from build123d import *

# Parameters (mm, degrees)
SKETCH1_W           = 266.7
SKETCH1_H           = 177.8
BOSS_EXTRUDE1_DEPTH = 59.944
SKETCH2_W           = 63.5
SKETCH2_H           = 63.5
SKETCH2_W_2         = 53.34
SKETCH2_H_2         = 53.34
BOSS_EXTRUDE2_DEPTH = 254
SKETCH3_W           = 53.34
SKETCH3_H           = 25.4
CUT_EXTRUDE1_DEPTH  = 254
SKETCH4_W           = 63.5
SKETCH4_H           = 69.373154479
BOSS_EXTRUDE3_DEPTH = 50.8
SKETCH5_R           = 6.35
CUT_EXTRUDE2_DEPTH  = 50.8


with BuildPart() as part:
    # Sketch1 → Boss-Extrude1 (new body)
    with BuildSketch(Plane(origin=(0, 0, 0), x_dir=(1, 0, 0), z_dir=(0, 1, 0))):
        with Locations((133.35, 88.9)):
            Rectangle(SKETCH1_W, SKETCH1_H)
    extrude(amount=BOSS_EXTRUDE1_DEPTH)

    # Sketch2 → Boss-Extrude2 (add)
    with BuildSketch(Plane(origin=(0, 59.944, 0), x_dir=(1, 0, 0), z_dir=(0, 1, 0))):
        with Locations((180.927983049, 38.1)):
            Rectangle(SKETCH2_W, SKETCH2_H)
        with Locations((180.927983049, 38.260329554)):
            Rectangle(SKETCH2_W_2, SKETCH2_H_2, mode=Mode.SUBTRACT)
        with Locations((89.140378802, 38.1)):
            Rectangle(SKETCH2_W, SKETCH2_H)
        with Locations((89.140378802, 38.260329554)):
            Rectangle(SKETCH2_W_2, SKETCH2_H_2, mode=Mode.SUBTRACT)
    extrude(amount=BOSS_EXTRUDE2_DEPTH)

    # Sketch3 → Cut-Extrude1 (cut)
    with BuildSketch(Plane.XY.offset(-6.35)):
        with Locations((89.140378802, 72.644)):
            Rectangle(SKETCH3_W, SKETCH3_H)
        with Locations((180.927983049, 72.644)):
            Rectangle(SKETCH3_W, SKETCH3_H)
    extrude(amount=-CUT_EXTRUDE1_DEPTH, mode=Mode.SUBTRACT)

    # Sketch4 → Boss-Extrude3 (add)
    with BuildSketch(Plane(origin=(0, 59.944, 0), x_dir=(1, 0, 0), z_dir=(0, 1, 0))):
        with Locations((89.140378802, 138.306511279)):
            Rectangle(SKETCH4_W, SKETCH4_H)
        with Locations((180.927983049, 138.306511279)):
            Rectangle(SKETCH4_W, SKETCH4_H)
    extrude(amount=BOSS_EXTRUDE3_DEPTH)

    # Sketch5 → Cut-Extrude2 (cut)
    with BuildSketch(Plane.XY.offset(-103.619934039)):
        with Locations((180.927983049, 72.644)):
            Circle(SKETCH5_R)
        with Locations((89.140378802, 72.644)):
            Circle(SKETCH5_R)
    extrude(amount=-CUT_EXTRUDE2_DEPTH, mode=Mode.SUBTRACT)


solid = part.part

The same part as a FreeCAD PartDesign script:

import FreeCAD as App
import Part
import Sketcher
from FreeCAD import Vector
Q = App.Units.Quantity

doc = App.newDocument("Part")
body = doc.addObject("PartDesign::Body", "Body")

# Sketch on XZ plane
sketch1 = body.newObject("Sketcher::SketchObject", "Sketch")
sketch1.AttachmentSupport = (doc.getObject("XZ_Plane"), [""])
sketch1.MapMode = "FlatFace"
sketch1.addGeometry([
    Part.LineSegment(Vector(0, -178, 0), Vector(0, 0, 0)),
    Part.LineSegment(Vector(0, 0, 0), Vector(267, 0, 0)),
    Part.LineSegment(Vector(267, 0, 0), Vector(267, -178, 0)),
    Part.LineSegment(Vector(267, -178, 0), Vector(0, -178, 0)),
], False)
sketch1.addConstraint([
    Sketcher.Constraint("Coincident", 0, 2, 1, 1),
    Sketcher.Constraint("Coincident", 1, 2, 2, 1),
    Sketcher.Constraint("Coincident", 2, 2, 3, 1),
    Sketcher.Constraint("Coincident", 3, 2, 0, 1),
    Sketcher.Constraint("Vertical", 0),
    Sketcher.Constraint("Horizontal", 1),
    Sketcher.Constraint("Vertical", 2),
    Sketcher.Constraint("Horizontal", 3),
    Sketcher.Constraint("Coincident", 0, 2, -1, 1),
    Sketcher.Constraint("DistanceY", 0, 1, 0, 2, Q("7 in")),
    Sketcher.Constraint("DistanceX", 1, 1, 1, 2, Q("10.5 in")),
])
pad1 = body.newObject("PartDesign::Pad", "Pad")
pad1.Profile = sketch1
pad1.Length = Q("2.36 in")
pad1.Reversed = True

# Sketch on XZ plane
sketch2 = body.newObject("Sketcher::SketchObject", "Sketch001")
sketch2.AttachmentSupport = (doc.getObject("XZ_Plane"), [""])
sketch2.MapMode = "FlatFace"
sketch2.AttachmentOffset = App.Placement(Vector(0, 0, -2.36 * 25.4), App.Rotation())
sketch2.addGeometry([
    Part.LineSegment(Vector(149, -70, 0), Vector(149, -6, 0)),  # 0
    Part.LineSegment(Vector(149, -6, 0), Vector(213, -6, 0)),  # 1
    Part.LineSegment(Vector(213, -6, 0), Vector(213, -70, 0)),  # 2
    Part.LineSegment(Vector(213, -70, 0), Vector(149, -70, 0)),  # 3
    Part.LineSegment(Vector(208, -12, 0), Vector(154, -12, 0)),  # 4
    Part.LineSegment(Vector(154, -12, 0), Vector(154, -65, 0)),  # 5
    Part.LineSegment(Vector(154, -65, 0), Vector(208, -65, 0)),  # 6
    Part.LineSegment(Vector(208, -65, 0), Vector(208, -12, 0)),  # 7
    Part.LineSegment(Vector(57, -70, 0), Vector(57, -6, 0)),  # 8
    Part.LineSegment(Vector(57, -6, 0), Vector(121, -6, 0)),  # 9
    Part.LineSegment(Vector(121, -6, 0), Vector(121, -70, 0)),  # 10
    Part.LineSegment(Vector(121, -70, 0), Vector(57, -70, 0)),  # 11
    Part.LineSegment(Vector(116, -12, 0), Vector(62, -12, 0)),  # 12
    Part.LineSegment(Vector(62, -12, 0), Vector(62, -65, 0)),  # 13
    Part.LineSegment(Vector(62, -65, 0), Vector(116, -65, 0)),  # 14
    Part.LineSegment(Vector(116, -65, 0), Vector(116, -12, 0)),  # 15
], False)
sketch2.addConstraint([
    Sketcher.Constraint("Coincident", 0, 2, 1, 1),
    Sketcher.Constraint("Coincident", 1, 2, 2, 1),
    Sketcher.Constraint("Coincident", 2, 2, 3, 1),
    Sketcher.Constraint("Coincident", 3, 2, 0, 1),
    Sketcher.Constraint("Coincident", 4, 2, 5, 1),
    Sketcher.Constraint("Coincident", 5, 2, 6, 1),
    Sketcher.Constraint("Coincident", 6, 2, 7, 1),
    Sketcher.Constraint("Coincident", 7, 2, 4, 1),
    Sketcher.Constraint("Coincident", 8, 2, 9, 1),
    Sketcher.Constraint("Coincident", 9, 2, 10, 1),
    Sketcher.Constraint("Coincident", 10, 2, 11, 1),
    Sketcher.Constraint("Coincident", 11, 2, 8, 1),
    Sketcher.Constraint("Coincident", 12, 2, 13, 1),
    Sketcher.Constraint("Coincident", 13, 2, 14, 1),
    Sketcher.Constraint("Coincident", 14, 2, 15, 1),
    Sketcher.Constraint("Coincident", 15, 2, 12, 1),
    Sketcher.Constraint("Vertical", 0),
    Sketcher.Constraint("Horizontal", 1),
    Sketcher.Constraint("Vertical", 2),
    Sketcher.Constraint("Horizontal", 3),
    Sketcher.Constraint("Horizontal", 4),
    Sketcher.Constraint("Vertical", 5),
    Sketcher.Constraint("Horizontal", 6),
    Sketcher.Constraint("Vertical", 7),
    Sketcher.Constraint("Vertical", 8),
    Sketcher.Constraint("Horizontal", 9),
    Sketcher.Constraint("Vertical", 10),
    Sketcher.Constraint("Horizontal", 11),
    Sketcher.Constraint("Horizontal", 12),
    Sketcher.Constraint("Vertical", 13),
    Sketcher.Constraint("Horizontal", 14),
    Sketcher.Constraint("Vertical", 15),
    Sketcher.Constraint("Horizontal", 1, 2, 8, 2),
    Sketcher.Constraint("Horizontal", 3, 2, 10, 2),
    Sketcher.Constraint("Horizontal", 7, 2, 12, 2),
    Sketcher.Constraint("Horizontal", 6, 2, 13, 2),
    Sketcher.Constraint("Equal", 3, 9),
    Sketcher.Constraint("Equal", 6, 12),
    Sketcher.Constraint("Equal", 11, 0),
    Sketcher.Constraint("Equal", 14, 5),
    Sketcher.Constraint("DistanceX", 1, 1, 1, 2, Q("2.5 in")),
    Sketcher.Constraint("DistanceX", 4, 2, 4, 1, Q("2.1 in")),
    Sketcher.Constraint("DistanceX", 0, 2, 4, 2, Q("0.2 in")),
    Sketcher.Constraint("DistanceX", 8, 2, 12, 2, Q("0.2 in")),
    Sketcher.Constraint("DistanceY", 0, 2, -1, 1, Q("0.25 in")),
    Sketcher.Constraint("DistanceY", 4, 2, -1, 1, Q("11.59033 mm")),
    Sketcher.Constraint("DistanceX", -1, 1, 8, 2, Q("57.390379 mm")),
    Sketcher.Constraint("DistanceX", -1, 1, 0, 2, Q("149.177983 mm")),
])
pad2 = body.newObject("PartDesign::Pad", "Pad001")
pad2.Profile = sketch2
pad2.Length = Q("10 in")
pad2.Reversed = True

# Sketch on XY plane
sketch3 = body.newObject("Sketcher::SketchObject", "Sketch002")
sketch3.AttachmentSupport = (doc.getObject("XY_Plane"), [""])
sketch3.MapMode = "FlatFace"
sketch3.AttachmentOffset = App.Placement(Vector(0, 0, -0.25 * 25.4), App.Rotation())
sketch3.addGeometry([
    Part.LineSegment(Vector(62, 85, 0), Vector(62, 60, 0)),  # 0
    Part.LineSegment(Vector(62, 60, 0), Vector(116, 60, 0)),  # 1
    Part.LineSegment(Vector(116, 60, 0), Vector(116, 85, 0)),  # 2
    Part.LineSegment(Vector(116, 85, 0), Vector(62, 85, 0)),  # 3
    Part.LineSegment(Vector(154, 85, 0), Vector(154, 60, 0)),  # 4
    Part.LineSegment(Vector(154, 60, 0), Vector(208, 60, 0)),  # 5
    Part.LineSegment(Vector(208, 60, 0), Vector(208, 85, 0)),  # 6
    Part.LineSegment(Vector(208, 85, 0), Vector(154, 85, 0)),  # 7
], False)
sketch3.addConstraint([
    Sketcher.Constraint("Coincident", 0, 2, 1, 1),
    Sketcher.Constraint("Coincident", 1, 2, 2, 1),
    Sketcher.Constraint("Coincident", 2, 2, 3, 1),
    Sketcher.Constraint("Coincident", 3, 2, 0, 1),
    Sketcher.Constraint("Coincident", 4, 2, 5, 1),
    Sketcher.Constraint("Coincident", 5, 2, 6, 1),
    Sketcher.Constraint("Coincident", 6, 2, 7, 1),
    Sketcher.Constraint("Coincident", 7, 2, 4, 1),
    Sketcher.Constraint("Vertical", 0),
    Sketcher.Constraint("Horizontal", 1),
    Sketcher.Constraint("Vertical", 2),
    Sketcher.Constraint("Horizontal", 3),
    Sketcher.Constraint("Vertical", 4),
    Sketcher.Constraint("Horizontal", 5),
    Sketcher.Constraint("Vertical", 6),
    Sketcher.Constraint("Horizontal", 7),
    Sketcher.Constraint("Horizontal", 1, 2, 4, 2),
    Sketcher.Constraint("Horizontal", 3, 2, 6, 2),
    Sketcher.Constraint("Equal", 3, 5),
    Sketcher.Constraint("DistanceY", 0, 2, 0, 1, Q("1 in")),
    Sketcher.Constraint("DistanceX", 1, 1, 1, 2, Q("2.1 in")),
    Sketcher.Constraint("DistanceY", -1, 1, 0, 2, Q("2.36 in")),
    Sketcher.Constraint("DistanceX", -1, 1, 0, 2, Q("62.470379 mm")),
    Sketcher.Constraint("DistanceX", -1, 1, 4, 2, Q("154.257983 mm")),
])
pocket1 = body.newObject("PartDesign::Pocket", "Pocket")
pocket1.Profile = sketch3
pocket1.Length = Q("10 in")

# Sketch on XZ plane
sketch4 = body.newObject("Sketcher::SketchObject", "Sketch003")
sketch4.AttachmentSupport = (doc.getObject("XZ_Plane"), [""])
sketch4.MapMode = "FlatFace"
sketch4.AttachmentOffset = App.Placement(Vector(0, 0, -2.36 * 25.4), App.Rotation())
sketch4.addGeometry([
    Part.LineSegment(Vector(57, -173, 0), Vector(57, -104, 0)),  # 0
    Part.LineSegment(Vector(57, -104, 0), Vector(121, -104, 0)),  # 1
    Part.LineSegment(Vector(121, -104, 0), Vector(121, -173, 0)),  # 2
    Part.LineSegment(Vector(121, -173, 0), Vector(57, -173, 0)),  # 3
    Part.LineSegment(Vector(149, -173, 0), Vector(149, -104, 0)),  # 4
    Part.LineSegment(Vector(149, -104, 0), Vector(213, -104, 0)),  # 5
    Part.LineSegment(Vector(213, -104, 0), Vector(213, -173, 0)),  # 6
    Part.LineSegment(Vector(213, -173, 0), Vector(149, -173, 0)),  # 7
], False)
sketch4.addConstraint([
    Sketcher.Constraint("Coincident", 0, 2, 1, 1),
    Sketcher.Constraint("Coincident", 1, 2, 2, 1),
    Sketcher.Constraint("Coincident", 2, 2, 3, 1),
    Sketcher.Constraint("Coincident", 3, 2, 0, 1),
    Sketcher.Constraint("Coincident", 4, 2, 5, 1),
    Sketcher.Constraint("Coincident", 5, 2, 6, 1),
    Sketcher.Constraint("Coincident", 6, 2, 7, 1),
    Sketcher.Constraint("Coincident", 7, 2, 4, 1),
    Sketcher.Constraint("Vertical", 0),
    Sketcher.Constraint("Horizontal", 1),
    Sketcher.Constraint("Vertical", 2),
    Sketcher.Constraint("Horizontal", 3),
    Sketcher.Constraint("Vertical", 4),
    Sketcher.Constraint("Horizontal", 5),
    Sketcher.Constraint("Vertical", 6),
    Sketcher.Constraint("Horizontal", 7),
    Sketcher.Constraint("Horizontal", 1, 2, 4, 2),
    Sketcher.Constraint("Horizontal", 3, 2, 6, 2),
    Sketcher.Constraint("Equal", 3, 5),
    Sketcher.Constraint("DistanceX", 1, 1, 1, 2, Q("2.5 in")),
    Sketcher.Constraint("DistanceY", 0, 1, 0, 2, Q("69.373154 mm")),
    Sketcher.Constraint("DistanceX", -1, 1, 0, 2, Q("57.390379 mm")),
    Sketcher.Constraint("DistanceY", 2, 2, -1, 1, Q("172.993089 mm")),
    Sketcher.Constraint("DistanceX", -1, 1, 4, 2, Q("149.177983 mm")),
])
pad3 = body.newObject("PartDesign::Pad", "Pad002")
pad3.Profile = sketch4
pad3.Length = Q("2 in")
pad3.Reversed = True

# Sketch on XY plane
sketch5 = body.newObject("Sketcher::SketchObject", "Sketch004")
sketch5.AttachmentSupport = (doc.getObject("XY_Plane"), [""])
sketch5.MapMode = "FlatFace"
sketch5.AttachmentOffset = App.Placement(Vector(0, 0, -103.619934), App.Rotation())
sketch5.addGeometry([
    Part.Circle(Vector(181, 73, 0), Vector(0, 0, 1), 6),
    Part.Circle(Vector(89, 73, 0), Vector(0, 0, 1), 6),
], False)
sketch5.addConstraint([
    Sketcher.Constraint("Equal", 0, 1),
    Sketcher.Constraint("Horizontal", 0, 3, 1, 3),
    Sketcher.Constraint("Diameter", 0, Q("0.5 in")),
    Sketcher.Constraint("DistanceY", -1, 1, 0, 3, Q("2.86 in")),
    Sketcher.Constraint("DistanceX", -1, 1, 1, 3, Q("89.140379 mm")),
    Sketcher.Constraint("DistanceX", -1, 1, 0, 3, Q("180.927983 mm")),
])
pocket2 = body.newObject("PartDesign::Pocket", "Pocket001")
pocket2.Profile = sketch5
pocket2.Length = Q("2 in")

doc.recompute()
